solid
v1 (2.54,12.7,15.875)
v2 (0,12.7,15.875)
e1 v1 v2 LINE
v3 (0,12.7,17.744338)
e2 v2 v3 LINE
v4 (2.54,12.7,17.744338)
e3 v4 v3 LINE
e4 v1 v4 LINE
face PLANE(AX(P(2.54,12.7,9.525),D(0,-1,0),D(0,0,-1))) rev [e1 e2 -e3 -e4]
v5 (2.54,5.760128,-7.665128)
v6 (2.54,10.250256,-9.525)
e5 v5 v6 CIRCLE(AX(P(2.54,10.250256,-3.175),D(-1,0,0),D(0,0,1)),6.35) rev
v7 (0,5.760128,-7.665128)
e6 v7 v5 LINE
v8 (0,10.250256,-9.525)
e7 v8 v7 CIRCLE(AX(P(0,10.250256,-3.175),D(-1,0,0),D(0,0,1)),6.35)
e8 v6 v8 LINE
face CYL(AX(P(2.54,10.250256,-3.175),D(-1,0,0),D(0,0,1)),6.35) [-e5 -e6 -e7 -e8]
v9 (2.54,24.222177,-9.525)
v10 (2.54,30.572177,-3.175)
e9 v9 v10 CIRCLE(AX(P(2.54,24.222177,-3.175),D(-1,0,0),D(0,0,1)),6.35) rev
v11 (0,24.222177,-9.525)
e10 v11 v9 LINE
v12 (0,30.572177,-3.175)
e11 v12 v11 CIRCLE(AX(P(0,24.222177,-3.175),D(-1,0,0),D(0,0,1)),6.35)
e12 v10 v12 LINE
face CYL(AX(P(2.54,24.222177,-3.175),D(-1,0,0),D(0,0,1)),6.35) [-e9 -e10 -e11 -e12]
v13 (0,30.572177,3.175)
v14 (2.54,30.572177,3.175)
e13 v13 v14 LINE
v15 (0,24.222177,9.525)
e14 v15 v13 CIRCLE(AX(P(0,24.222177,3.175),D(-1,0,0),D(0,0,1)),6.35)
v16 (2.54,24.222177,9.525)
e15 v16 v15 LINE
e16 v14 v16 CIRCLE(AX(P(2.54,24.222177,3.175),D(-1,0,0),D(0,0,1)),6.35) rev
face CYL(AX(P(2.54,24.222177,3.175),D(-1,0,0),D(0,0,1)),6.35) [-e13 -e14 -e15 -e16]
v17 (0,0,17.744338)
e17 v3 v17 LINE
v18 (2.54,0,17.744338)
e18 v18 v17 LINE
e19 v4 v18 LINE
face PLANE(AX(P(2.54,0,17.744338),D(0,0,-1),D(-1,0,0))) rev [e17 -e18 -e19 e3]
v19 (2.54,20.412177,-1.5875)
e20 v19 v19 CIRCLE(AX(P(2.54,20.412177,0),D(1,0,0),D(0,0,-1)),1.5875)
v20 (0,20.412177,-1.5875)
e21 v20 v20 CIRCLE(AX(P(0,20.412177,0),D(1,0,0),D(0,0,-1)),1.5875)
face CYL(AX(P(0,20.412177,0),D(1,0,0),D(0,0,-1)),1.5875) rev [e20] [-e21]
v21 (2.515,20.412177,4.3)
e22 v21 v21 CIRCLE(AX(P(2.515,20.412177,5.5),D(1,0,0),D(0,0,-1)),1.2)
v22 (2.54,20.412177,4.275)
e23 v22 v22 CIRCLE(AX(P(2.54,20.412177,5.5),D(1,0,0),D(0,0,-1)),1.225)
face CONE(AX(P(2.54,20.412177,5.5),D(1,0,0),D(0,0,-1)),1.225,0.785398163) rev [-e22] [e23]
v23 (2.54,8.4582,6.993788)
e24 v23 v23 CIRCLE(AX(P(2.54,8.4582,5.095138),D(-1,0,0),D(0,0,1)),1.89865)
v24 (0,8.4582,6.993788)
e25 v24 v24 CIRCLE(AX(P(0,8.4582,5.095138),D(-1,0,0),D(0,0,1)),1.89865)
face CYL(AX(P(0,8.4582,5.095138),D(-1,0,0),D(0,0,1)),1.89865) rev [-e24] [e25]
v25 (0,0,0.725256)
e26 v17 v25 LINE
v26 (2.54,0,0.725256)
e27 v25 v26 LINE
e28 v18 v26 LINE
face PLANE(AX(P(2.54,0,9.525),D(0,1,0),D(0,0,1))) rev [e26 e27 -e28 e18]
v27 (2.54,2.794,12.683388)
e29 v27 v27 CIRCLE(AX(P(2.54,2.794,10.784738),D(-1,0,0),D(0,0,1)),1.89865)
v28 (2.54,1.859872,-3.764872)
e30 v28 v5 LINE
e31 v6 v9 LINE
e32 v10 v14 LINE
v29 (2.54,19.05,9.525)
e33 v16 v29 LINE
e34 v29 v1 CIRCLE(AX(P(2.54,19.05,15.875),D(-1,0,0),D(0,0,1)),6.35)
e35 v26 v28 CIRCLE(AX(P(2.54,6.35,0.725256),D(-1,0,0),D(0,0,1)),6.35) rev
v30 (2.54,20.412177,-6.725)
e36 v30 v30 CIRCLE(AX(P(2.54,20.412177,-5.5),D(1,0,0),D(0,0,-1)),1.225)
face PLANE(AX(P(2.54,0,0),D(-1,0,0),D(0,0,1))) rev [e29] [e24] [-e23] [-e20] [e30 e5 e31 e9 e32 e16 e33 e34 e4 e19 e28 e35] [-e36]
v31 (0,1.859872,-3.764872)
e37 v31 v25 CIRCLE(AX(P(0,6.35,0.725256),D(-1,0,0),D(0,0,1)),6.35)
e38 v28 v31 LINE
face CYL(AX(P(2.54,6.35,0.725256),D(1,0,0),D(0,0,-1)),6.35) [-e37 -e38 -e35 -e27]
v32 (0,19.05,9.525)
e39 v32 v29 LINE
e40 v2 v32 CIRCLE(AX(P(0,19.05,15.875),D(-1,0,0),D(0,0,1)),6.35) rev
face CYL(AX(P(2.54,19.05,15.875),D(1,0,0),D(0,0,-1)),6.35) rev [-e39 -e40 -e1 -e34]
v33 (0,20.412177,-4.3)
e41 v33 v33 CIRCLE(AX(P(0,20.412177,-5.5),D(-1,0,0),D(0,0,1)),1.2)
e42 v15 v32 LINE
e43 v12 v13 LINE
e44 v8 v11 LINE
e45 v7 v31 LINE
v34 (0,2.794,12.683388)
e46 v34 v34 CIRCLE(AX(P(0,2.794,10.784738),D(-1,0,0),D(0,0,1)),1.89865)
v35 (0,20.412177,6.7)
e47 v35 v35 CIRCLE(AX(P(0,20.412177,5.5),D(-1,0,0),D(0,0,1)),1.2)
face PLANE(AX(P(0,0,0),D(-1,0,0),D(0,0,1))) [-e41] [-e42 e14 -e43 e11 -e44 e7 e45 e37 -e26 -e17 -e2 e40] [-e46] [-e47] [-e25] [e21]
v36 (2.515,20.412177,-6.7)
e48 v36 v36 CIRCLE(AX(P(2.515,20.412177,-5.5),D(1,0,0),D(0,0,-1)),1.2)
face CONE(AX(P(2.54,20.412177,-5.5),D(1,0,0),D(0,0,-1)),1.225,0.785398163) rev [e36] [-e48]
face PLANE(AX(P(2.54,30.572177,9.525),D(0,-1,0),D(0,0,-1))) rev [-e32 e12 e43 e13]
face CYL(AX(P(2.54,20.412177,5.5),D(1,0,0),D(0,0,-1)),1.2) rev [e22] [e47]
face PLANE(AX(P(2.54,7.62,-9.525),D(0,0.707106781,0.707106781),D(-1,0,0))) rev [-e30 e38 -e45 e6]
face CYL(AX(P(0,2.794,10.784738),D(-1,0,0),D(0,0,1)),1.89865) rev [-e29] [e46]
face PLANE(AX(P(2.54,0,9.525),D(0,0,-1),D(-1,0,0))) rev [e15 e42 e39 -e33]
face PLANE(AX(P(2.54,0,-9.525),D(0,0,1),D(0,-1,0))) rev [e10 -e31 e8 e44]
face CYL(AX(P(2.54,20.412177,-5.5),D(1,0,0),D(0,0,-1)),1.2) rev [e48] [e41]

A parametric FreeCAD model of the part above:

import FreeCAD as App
import Part
import Sketcher

V = App.Vector
Q = App.Units.Quantity


def edges_at(feature, points):
    """Names of the edges that pass closest to the given points."""
    edges = feature.Shape.Edges
    near = lambda p: min(range(len(edges)), key=lambda i: edges[i].distToShape(Part.Vertex(*p))[0])
    return sorted({f"Edge{near(p) + 1}" for p in points})


def add_polygon(sketch, points):
    """Adds a closed chain of lines whose ends are joined by coincident constraints."""
    first, n = sketch.GeometryCount, len(points)
    for a, b in zip(points, points[1:] + points[:1]):
        sketch.addGeometry(Part.LineSegment(App.Vector(*a, 0), App.Vector(*b, 0)), False)
    for i in range(n):
        sketch.addConstraint(Sketcher.Constraint("Coincident", first + i, 2, first + (i + 1) % n, 1))

doc = App.newDocument("Part")
body = doc.addObject("PartDesign::Body", "Body")

# Sketch on YZ plane
sketch1 = body.newObject("Sketcher::SketchObject", "Sketch")
sketch1.AttachmentSupport = (doc.getObject("YZ_Plane"), [""])
sketch1.MapMode = "FlatFace"
add_polygon(sketch1, [(30.572177, 9.525), (0, 9.525), (0, -9.525), (30.572177, -9.525)])  # lines 0-3
sketch1.addConstraint([
    Sketcher.Constraint("Horizontal", 0),
    Sketcher.Constraint("Vertical", 1),
    Sketcher.Constraint("Horizontal", 2),
    Sketcher.Constraint("Vertical", 3),
    Sketcher.Constraint("Symmetric", 0, 2, 1, 2, -1, 1),
    Sketcher.Constraint("DistanceY", 1, 2, 1, 1, Q("0.75 in")),
    Sketcher.Constraint("DistanceX", 0, 2, 0, 1, 30.572177),
])
pad1 = body.newObject("PartDesign::Pad", "Pad")
pad1.Profile = sketch1
pad1.Length = Q("0.1 in")

# Sketch on YZ plane
sketch2 = body.newObject("Sketcher::SketchObject", "Sketch001")
sketch2.AttachmentSupport = (doc.getObject("YZ_Plane"), [""])
sketch2.MapMode = "FlatFace"
sketch2.AttachmentOffset = App.Placement(V(0, 0, 0.1 * 25.4), App.Rotation())
sketch2.addGeometry(Part.Circle(V(20.412177, 0, 0), V(0, 0, 1), 1.5875), False)
sketch2.addConstraint([
    Sketcher.Constraint("PointOnObject", 0, 3, -1),
    Sketcher.Constraint("Diameter", 0, Q("0.125 in")),
    Sketcher.Constraint("DistanceX", -1, 1, 0, 3, 20.412177),
])
pocket1 = body.newObject("PartDesign::Pocket", "Pocket")
pocket1.Profile = sketch2
pocket1.Type = "ThroughAll"

# Sketch on YZ plane
sketch3 = body.newObject("Sketcher::SketchObject", "Sketch002")
sketch3.AttachmentSupport = (doc.getObject("YZ_Plane"), [""])
sketch3.MapMode = "FlatFace"
sketch3.AttachmentOffset = App.Placement(V(0, 0, 0.1 * 25.4), App.Rotation())
sketch3.addGeometry([
    Part.Circle(V(20.412177, 5.5, 0), V(0, 0, 1), 1.2),
    Part.Circle(V(20.412177, -5.5, 0), V(0, 0, 1), 1.2),
], False)
sketch3.addConstraint([
    Sketcher.Constraint("Equal", 0, 1),
    Sketcher.Constraint("Symmetric", 0, 3, 1, 3, -1),
    Sketcher.Constraint("Diameter", 0, 2.4),
    Sketcher.Constraint("DistanceY", -1, 1, 0, 3, 5.5),
    Sketcher.Constraint("DistanceX", -1, 1, 0, 3, 20.412177),
])
doc.recompute()
hole = body.newObject("PartDesign::Hole", "Hole")
hole.Profile = sketch3
hole.ThreadType = "None"
hole.Diameter = 2.4
hole.DepthType = "Dimension"
hole.Depth = 12.000001
hole.DrillPoint = "Angled"
hole.DrillPointAngle = 118
hole.HoleCutType = "Countersink"
hole.HoleCutDiameter = 2.45
hole.HoleCutCountersinkAngle = 90

# Sketch on YZ plane
sketch4 = body.newObject("Sketcher::SketchObject", "Sketch003")
sketch4.AttachmentSupport = (doc.getObject("YZ_Plane"), [""])
sketch4.MapMode = "FlatFace"
add_polygon(sketch4, [(12.7, 17.744338), (0, 17.744338), (0, 9.525), (12.7, 9.525)])  # lines 0-3
sketch4.addConstraint([
    Sketcher.Constraint("Horizontal", 0),
    Sketcher.Constraint("Vertical", 1),
    Sketcher.Constraint("Horizontal", 2),
    Sketcher.Constraint("Vertical", 3),
    Sketcher.Constraint("PointOnObject", 0, 2, -2),
    Sketcher.Constraint("DistanceX", 0, 2, 0, 1, Q("0.5 in")),
    Sketcher.Constraint("DistanceY", -1, 1, 1, 2, Q("0.375 in")),
    Sketcher.Constraint("DistanceY", 1, 2, 1, 1, 8.219338),
])
pad2 = body.newObject("PartDesign::Pad", "Pad001")
pad2.Profile = sketch4
pad2.Length = Q("0.1 in")
doc.recompute()

chamfer = body.newObject("PartDesign::Chamfer", "Chamfer")
chamfer.Base = (pad2, edges_at(pad2, [(1.27, 0, -9.525)]))
chamfer.Size = Q("0.3 in")
doc.recompute()

fillet = body.newObject("PartDesign::Fillet", "Fillet")
fillet.Base = (chamfer, edges_at(chamfer, [
    (1.27, 12.7, 9.525),
    (1.27, 7.62, -9.525),
    (1.27, 0, -1.905),
    (1.27, 30.572, 9.525),
    (1.27, 30.572, -9.525),
]))
fillet.Radius = Q("0.25 in")

# Sketch on YZ plane
sketch5 = body.newObject("Sketcher::SketchObject", "Sketch004")
sketch5.AttachmentSupport = (doc.getObject("YZ_Plane"), [""])
sketch5.MapMode = "FlatFace"
sketch5.addGeometry([
    Part.Circle(V(2.794, 10.784738, 0), V(0, 0, 1), 1.89865),
    Part.Circle(V(8.4582, 5.095138, 0), V(0, 0, 1), 1.89865),
], False)
sketch5.addConstraint([
    Sketcher.Constraint("Equal", 0, 1),
    Sketcher.Constraint("Diameter", 0, Q("0.1495 in")),
    Sketcher.Constraint("DistanceX", -1, 1, 0, 3, Q("0.11 in")),
    Sketcher.Constraint("DistanceX", -1, 1, 1, 3, Q("0.333 in")),
    Sketcher.Constraint("DistanceY", 1, 3, 0, 3, Q("0.224 in")),
    Sketcher.Constraint("DistanceY", -1, 1, 0, 3, 10.784738),
])
doc.recompute()
hole2 = body.newObject("PartDesign::Hole", "Hole001")
hole2.Profile = sketch5
hole2.ThreadType = "None"
hole2.Diameter = Q("0.1495 in")
hole2.DepthType = "ThroughAll"
hole2.Reversed = True

doc.recompute()
